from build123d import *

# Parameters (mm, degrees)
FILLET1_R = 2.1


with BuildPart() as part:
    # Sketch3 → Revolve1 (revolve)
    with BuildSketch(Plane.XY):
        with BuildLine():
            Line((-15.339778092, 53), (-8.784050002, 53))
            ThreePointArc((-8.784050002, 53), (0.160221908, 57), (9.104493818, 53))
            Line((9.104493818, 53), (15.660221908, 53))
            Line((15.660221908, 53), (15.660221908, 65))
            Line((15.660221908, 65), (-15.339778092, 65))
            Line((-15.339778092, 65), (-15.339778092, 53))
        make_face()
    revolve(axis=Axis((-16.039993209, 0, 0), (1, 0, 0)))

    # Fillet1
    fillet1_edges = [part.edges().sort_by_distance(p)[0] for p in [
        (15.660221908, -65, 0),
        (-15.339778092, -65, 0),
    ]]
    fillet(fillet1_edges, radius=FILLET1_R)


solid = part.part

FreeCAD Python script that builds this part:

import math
import FreeCAD as App
import Part
import Sketcher

V = App.Vector
Q = App.Units.Quantity


def edges_at(feature, points):
    """Names of the edges that pass closest to the given points."""
    edges = feature.Shape.Edges
    near = lambda p: min(range(len(edges)), key=lambda i: edges[i].distToShape(Part.Vertex(*p))[0])
    return sorted({f"Edge{near(p) + 1}" for p in points})

doc = App.newDocument("Part")
body = doc.addObject("PartDesign::Body", "Body")

sketch1 = body.newObject("Sketcher::SketchObject", "Sketch")
sketch1.AttachmentSupport = (doc.getObject("XY_Plane"), [""])
sketch1.MapMode = "FlatFace"
sketch1.addGeometry([
    Part.LineSegment(V(-15, 53, 0), V(-9, 53, 0)),
    Part.ArcOfCircle(Part.Circle(V(0, 45, 0), V(0, 0, 1), 12), math.radians(42), math.radians(138)),
    Part.LineSegment(V(9, 53, 0), V(16, 53, 0)),
    Part.LineSegment(V(16, 53, 0), V(16, 65, 0)),
    Part.LineSegment(V(16, 65, 0), V(-15, 65, 0)),
    Part.LineSegment(V(-15, 65, 0), V(-15, 53, 0)),
], False)
sketch1.addConstraint([
    Sketcher.Constraint("Coincident", 0, 2, 1, 2),
    Sketcher.Constraint("Coincident", 1, 1, 2, 1),
    Sketcher.Constraint("Coincident", 2, 2, 3, 1),
    Sketcher.Constraint("Coincident", 3, 2, 4, 1),
    Sketcher.Constraint("Coincident", 4, 2, 5, 1),
    Sketcher.Constraint("Coincident", 5, 2, 0, 1),
    Sketcher.Constraint("Horizontal", 0),
    Sketcher.Constraint("Horizontal", 2),
    Sketcher.Constraint("Vertical", 3),
    Sketcher.Constraint("Horizontal", 4),
    Sketcher.Constraint("Vertical", 5),
    Sketcher.Constraint("Horizontal", 0, 2, 1, 1),
    Sketcher.Constraint("Equal", 0, 2),
    Sketcher.Constraint("Radius", 1, Q("12 mm")),
    Sketcher.Constraint("DistanceX", 4, 2, 4, 1, Q("31 mm")),
    Sketcher.Constraint("DistanceY", 3, 1, 3, 2, Q("12 mm")),
    Sketcher.Constraint("DistanceY", -1, 1, 1, 3, Q("45 mm")),
    Sketcher.Constraint("DistanceY", -1, 1, 0, 2, Q("53 mm")),
    Sketcher.Constraint("DistanceX", -1, 1, 1, 3, Q("0.160222 mm")),
])
revolution = body.newObject("PartDesign::Revolution", "Revolution")
revolution.Profile = sketch1
revolution.ReferenceAxis = (sketch1, ["H_Axis"])
revolution.Angle = 360
doc.recompute()

fillet = body.newObject("PartDesign::Fillet", "Fillet")
fillet.Base = (revolution, edges_at(revolution, [(15.66, -65, 0), (-15.34, -65, 0)]))
fillet.Radius = 2.1

doc.recompute()
